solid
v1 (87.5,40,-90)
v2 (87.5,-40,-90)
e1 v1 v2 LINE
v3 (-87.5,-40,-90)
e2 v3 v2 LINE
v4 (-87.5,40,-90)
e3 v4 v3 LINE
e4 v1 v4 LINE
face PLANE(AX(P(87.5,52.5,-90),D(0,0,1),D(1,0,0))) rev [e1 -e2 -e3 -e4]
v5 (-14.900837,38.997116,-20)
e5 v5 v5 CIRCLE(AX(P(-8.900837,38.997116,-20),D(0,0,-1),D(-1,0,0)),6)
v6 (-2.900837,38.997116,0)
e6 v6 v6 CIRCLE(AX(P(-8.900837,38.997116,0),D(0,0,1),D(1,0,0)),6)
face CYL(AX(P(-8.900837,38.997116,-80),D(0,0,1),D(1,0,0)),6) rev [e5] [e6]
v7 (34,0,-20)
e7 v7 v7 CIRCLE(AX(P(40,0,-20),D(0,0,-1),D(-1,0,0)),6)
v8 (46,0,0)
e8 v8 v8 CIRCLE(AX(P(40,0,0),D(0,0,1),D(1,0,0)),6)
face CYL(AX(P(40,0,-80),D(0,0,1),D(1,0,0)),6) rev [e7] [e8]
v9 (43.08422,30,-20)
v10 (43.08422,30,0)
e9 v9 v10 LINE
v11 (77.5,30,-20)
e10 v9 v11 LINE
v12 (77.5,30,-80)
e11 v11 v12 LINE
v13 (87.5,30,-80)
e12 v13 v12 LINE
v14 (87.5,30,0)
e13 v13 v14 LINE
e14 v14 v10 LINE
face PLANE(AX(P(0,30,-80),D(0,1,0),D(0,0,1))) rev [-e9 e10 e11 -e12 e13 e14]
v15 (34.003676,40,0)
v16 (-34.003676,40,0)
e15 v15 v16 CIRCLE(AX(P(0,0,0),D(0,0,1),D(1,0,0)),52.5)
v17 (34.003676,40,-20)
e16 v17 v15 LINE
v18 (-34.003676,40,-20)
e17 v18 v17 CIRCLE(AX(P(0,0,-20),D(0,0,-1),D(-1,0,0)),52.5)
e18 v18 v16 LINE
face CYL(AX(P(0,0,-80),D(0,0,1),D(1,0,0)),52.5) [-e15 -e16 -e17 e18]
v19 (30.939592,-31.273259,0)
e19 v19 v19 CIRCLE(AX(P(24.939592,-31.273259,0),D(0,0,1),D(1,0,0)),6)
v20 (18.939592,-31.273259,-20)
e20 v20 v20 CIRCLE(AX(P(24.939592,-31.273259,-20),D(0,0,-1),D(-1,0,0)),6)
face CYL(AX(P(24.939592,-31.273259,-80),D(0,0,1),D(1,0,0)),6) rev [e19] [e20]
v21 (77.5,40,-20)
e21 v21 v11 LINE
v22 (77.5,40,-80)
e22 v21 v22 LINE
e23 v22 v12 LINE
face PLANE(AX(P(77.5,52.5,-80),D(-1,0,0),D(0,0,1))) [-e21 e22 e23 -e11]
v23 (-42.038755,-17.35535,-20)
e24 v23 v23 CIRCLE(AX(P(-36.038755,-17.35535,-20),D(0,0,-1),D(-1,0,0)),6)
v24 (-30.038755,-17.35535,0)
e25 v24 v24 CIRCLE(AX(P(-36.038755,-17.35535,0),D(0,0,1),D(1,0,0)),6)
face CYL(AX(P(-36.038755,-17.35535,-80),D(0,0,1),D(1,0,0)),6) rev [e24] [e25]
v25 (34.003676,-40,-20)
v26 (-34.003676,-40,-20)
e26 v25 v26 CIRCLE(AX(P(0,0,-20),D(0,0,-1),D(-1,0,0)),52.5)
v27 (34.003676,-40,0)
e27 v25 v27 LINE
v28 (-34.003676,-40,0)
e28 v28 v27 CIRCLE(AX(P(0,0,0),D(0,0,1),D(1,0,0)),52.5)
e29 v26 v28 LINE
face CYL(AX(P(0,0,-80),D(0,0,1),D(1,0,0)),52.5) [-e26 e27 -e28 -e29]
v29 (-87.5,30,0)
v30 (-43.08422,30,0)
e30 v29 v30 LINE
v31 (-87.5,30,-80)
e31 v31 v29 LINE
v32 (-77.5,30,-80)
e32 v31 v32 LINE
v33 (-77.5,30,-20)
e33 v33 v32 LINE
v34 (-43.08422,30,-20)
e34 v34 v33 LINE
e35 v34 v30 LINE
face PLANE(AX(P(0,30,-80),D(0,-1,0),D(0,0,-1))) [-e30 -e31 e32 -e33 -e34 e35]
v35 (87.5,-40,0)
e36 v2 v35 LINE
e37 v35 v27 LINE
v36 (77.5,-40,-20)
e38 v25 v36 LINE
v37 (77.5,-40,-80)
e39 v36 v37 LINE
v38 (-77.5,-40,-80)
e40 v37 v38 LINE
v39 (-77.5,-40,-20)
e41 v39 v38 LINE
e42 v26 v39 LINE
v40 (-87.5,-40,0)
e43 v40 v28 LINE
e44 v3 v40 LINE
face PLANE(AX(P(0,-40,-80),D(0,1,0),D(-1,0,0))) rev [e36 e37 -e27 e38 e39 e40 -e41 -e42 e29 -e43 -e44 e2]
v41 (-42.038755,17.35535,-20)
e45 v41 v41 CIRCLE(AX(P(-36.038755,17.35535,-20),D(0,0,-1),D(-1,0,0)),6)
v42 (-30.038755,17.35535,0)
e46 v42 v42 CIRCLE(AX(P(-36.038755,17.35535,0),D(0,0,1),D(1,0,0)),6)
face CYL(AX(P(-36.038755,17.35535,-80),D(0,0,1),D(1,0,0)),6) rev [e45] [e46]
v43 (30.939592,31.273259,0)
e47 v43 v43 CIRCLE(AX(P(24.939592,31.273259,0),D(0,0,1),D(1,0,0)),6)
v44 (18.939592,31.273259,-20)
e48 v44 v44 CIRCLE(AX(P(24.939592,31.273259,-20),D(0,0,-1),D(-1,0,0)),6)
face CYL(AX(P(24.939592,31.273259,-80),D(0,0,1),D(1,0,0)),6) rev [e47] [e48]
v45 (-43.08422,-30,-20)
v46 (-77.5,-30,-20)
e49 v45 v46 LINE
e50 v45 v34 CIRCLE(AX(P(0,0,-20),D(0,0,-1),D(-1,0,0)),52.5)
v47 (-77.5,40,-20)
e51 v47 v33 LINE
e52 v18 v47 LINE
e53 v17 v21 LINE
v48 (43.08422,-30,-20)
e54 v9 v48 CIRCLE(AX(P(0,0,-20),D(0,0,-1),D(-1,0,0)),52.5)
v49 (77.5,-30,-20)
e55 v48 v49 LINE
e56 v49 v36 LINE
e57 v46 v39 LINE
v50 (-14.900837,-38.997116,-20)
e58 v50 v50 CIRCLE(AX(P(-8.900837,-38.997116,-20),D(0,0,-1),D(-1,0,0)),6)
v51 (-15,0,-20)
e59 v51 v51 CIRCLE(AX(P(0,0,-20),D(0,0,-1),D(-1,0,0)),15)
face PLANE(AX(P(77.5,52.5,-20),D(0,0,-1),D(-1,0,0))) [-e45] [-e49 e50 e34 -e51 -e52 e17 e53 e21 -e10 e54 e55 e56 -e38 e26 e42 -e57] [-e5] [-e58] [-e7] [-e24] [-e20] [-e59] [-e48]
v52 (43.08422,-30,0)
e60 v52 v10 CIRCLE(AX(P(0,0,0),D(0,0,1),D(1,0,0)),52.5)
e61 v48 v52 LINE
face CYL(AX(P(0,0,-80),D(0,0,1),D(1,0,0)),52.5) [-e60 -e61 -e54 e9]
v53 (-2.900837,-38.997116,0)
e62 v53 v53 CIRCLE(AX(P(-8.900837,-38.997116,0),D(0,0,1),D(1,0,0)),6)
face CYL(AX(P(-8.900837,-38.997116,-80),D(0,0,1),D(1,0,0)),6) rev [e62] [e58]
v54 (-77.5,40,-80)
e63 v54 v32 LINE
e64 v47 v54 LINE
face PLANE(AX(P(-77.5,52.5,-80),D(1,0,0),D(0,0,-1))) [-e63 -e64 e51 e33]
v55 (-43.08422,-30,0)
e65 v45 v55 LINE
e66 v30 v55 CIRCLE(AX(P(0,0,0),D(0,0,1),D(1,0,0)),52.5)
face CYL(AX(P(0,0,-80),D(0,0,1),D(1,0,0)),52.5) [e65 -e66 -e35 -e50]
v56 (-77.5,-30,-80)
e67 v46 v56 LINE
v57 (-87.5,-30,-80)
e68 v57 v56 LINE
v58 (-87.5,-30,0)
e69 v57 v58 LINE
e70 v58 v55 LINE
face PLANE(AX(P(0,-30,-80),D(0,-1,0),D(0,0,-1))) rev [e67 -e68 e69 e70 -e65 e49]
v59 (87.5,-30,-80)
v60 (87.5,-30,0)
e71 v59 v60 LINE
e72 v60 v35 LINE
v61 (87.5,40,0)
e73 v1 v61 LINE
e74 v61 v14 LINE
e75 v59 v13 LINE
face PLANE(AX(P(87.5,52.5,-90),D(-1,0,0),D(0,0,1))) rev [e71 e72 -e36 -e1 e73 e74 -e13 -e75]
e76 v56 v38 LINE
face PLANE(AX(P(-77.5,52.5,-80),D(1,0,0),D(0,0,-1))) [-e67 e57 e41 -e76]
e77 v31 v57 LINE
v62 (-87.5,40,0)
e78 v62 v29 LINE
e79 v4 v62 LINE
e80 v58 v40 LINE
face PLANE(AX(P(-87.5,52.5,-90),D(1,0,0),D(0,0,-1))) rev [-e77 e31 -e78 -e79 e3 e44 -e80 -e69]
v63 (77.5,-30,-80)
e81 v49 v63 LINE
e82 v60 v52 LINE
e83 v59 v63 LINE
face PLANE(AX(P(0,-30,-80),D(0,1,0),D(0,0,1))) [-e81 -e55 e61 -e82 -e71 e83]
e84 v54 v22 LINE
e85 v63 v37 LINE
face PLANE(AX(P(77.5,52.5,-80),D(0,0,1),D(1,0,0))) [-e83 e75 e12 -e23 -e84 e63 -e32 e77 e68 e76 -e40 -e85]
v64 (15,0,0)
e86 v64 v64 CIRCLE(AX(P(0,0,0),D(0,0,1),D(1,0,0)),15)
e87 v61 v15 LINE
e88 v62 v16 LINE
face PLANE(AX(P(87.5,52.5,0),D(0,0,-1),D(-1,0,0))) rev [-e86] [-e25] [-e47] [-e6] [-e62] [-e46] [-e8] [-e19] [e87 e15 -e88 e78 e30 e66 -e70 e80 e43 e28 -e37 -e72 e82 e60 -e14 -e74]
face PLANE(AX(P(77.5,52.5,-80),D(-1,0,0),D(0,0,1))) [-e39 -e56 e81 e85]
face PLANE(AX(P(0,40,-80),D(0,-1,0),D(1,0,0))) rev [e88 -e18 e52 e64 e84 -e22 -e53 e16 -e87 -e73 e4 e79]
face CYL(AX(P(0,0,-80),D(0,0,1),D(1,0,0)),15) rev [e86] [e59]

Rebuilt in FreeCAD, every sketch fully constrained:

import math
import FreeCAD as App
import Part
import Sketcher
from FreeCAD import Vector
Q = App.Units.Quantity


def add_polygon(sketch, points):
    """Adds a closed chain of lines whose ends are joined by coincident constraints."""
    first, n = sketch.GeometryCount, len(points)
    for a, b in zip(points, points[1:] + points[:1]):
        sketch.addGeometry(Part.LineSegment(App.Vector(*a, 0), App.Vector(*b, 0)), False)
    for i in range(n):
        sketch.addConstraint(Sketcher.Constraint("Coincident", first + i, 2, first + (i + 1) % n, 1))

doc = App.newDocument("Part")
body = doc.addObject("PartDesign::Body", "Body")

sketch1 = body.newObject("Sketcher::SketchObject", "Sketch")
sketch1.AttachmentSupport = (doc.getObject("XZ_Plane"), [""])
sketch1.MapMode = "FlatFace"
add_polygon(sketch1, [(-87.5, -90), (-87.5, 0), (87.5, 0), (87.5, -90)])
add_polygon(sketch1, [(77.5, -20), (-77.5, -20), (-77.5, -80), (77.5, -80)])
sketch1.addConstraint([
    Sketcher.Constraint("Vertical", 0),
    Sketcher.Constraint("Horizontal", 1),
    Sketcher.Constraint("Vertical", 2),
    Sketcher.Constraint("Horizontal", 3),
    Sketcher.Constraint("Horizontal", 4),
    Sketcher.Constraint("Vertical", 5),
    Sketcher.Constraint("Horizontal", 6),
    Sketcher.Constraint("Vertical", 7),
    Sketcher.Constraint("Symmetric", 0, 2, 1, 2, -1, 1),
    Sketcher.Constraint("DistanceX", 1, 1, 1, 2, Q("175 mm")),
    Sketcher.Constraint("DistanceX", 4, 2, 4, 1, Q("155 mm")),
    Sketcher.Constraint("DistanceY", 0, 1, 0, 2, Q("90 mm")),
    Sketcher.Constraint("DistanceY", 5, 2, 5, 1, Q("60 mm")),
    Sketcher.Constraint("DistanceY", 4, 2, -1, 1, Q("20 mm")),
    Sketcher.Constraint("DistanceX", 0, 2, 4, 2, Q("10 mm")),
])
pad1 = body.newObject("PartDesign::Pad", "Pad")
pad1.Profile = sketch1
pad1.Length = 105
pad1.Midplane = True

sketch2 = body.newObject("Sketcher::SketchObject", "Sketch001")
sketch2.AttachmentSupport = (doc.getObject("XY_Plane"), [""])
sketch2.MapMode = "FlatFace"
sketch2.addGeometry([
    Part.LineSegment(Vector(-87.5, 52.5, 0), Vector(-87.5, 40, 0)),
    Part.LineSegment(Vector(-87.5, 40, 0), Vector(-34.003676, 40, 0)),
    Part.ArcOfCircle(Part.Circle(Vector(0, 0, 0), Vector(0, 0, 1), 52.5), math.radians(90), math.radians(130.367594)),
    Part.LineSegment(Vector(0, 52.5, 0), Vector(-87.5, 52.5, 0)),
    Part.LineSegment(Vector(87.5, 52.5, 0), Vector(0, 52.5, 0)),
    Part.ArcOfCircle(Part.Circle(Vector(0, 0, 0), Vector(0, 0, 1), 52.5), math.radians(49.632406), math.radians(90)),
    Part.LineSegment(Vector(34.003676, 40, 0), Vector(87.5, 40, 0)),
    Part.LineSegment(Vector(87.5, 40, 0), Vector(87.5, 52.5, 0)),
    Part.LineSegment(Vector(-34.003676, -40, 0), Vector(-87.5, -40, 0)),
    Part.LineSegment(Vector(-87.5, -40, 0), Vector(-87.5, -52.5, 0)),
    Part.LineSegment(Vector(-87.5, -52.5, 0), Vector(0, -52.5, 0)),
    Part.ArcOfCircle(Part.Circle(Vector(0, 0, 0), Vector(0, 0, 1), 52.5), math.radians(-130.367594), math.radians(-90)),
    Part.ArcOfCircle(Part.Circle(Vector(0, 0, 0), Vector(0, 0, 1), 52.5), math.radians(-90), math.radians(-49.632406)),
    Part.LineSegment(Vector(0, -52.5, 0), Vector(87.5, -52.5, 0)),
    Part.LineSegment(Vector(87.5, -52.5, 0), Vector(87.5, -40, 0)),
    Part.LineSegment(Vector(87.5, -40, 0), Vector(34.003676, -40, 0)),
    Part.LineSegment(Vector(87.5, 30, 0), Vector(43.08422, 30, 0)),
    Part.ArcOfCircle(Part.Circle(Vector(0, 0, 0), Vector(0, 0, 1), 52.5), math.radians(0), math.radians(34.849905)),
    Part.ArcOfCircle(Part.Circle(Vector(0, 0, 0), Vector(0, 0, 1), 52.5), math.radians(-34.849905), math.radians(0)),
    Part.LineSegment(Vector(43.08422, -30, 0), Vector(87.5, -30, 0)),
    Part.LineSegment(Vector(87.5, -30, 0), Vector(87.5, 30, 0)),
    Part.LineSegment(Vector(-43.08422, 30, 0), Vector(-87.5, 30, 0)),
    Part.LineSegment(Vector(-87.5, 30, 0), Vector(-87.5, -30, 0)),
    Part.LineSegment(Vector(-87.5, -30, 0), Vector(-43.08422, -30, 0)),
    Part.ArcOfCircle(Part.Circle(Vector(0, 0, 0), Vector(0, 0, 1), 52.5), math.radians(145.150095), math.radians(214.849905)),
    Part.Circle(Vector(-8.900837, 38.997116, 0), Vector(0, 0, 1), 6),
    Part.Circle(Vector(24.939592, 31.273259, 0), Vector(0, 0, 1), 6),
    Part.Circle(Vector(-36.038755, 17.35535, 0), Vector(0, 0, 1), 6),
    Part.Circle(Vector(40, 0, 0), Vector(0, 0, 1), 6),
    Part.Circle(Vector(-36.038755, -17.35535, 0), Vector(0, 0, 1), 6),
    Part.Circle(Vector(-8.900837, -38.997116, 0), Vector(0, 0, 1), 6),
    Part.Circle(Vector(24.939592, -31.273259, 0), Vector(0, 0, 1), 6),
    Part.Circle(Vector(0, 0, 0), Vector(0, 0, 1), 15),
], False)
sketch2.addConstraint([
    Sketcher.Constraint("Coincident", 0, 2, 1, 1),
    Sketcher.Constraint("Coincident", 1, 2, 2, 2),
    Sketcher.Constraint("Tangent", 2, 1, 3, 1),
    Sketcher.Constraint("Coincident", 3, 2, 0, 1),
    Sketcher.Constraint("Tangent", 4, 2, 5, 2),
    Sketcher.Constraint("Coincident", 5, 1, 6, 1),
    Sketcher.Constraint("Coincident", 6, 2, 7, 1),
    Sketcher.Constraint("Coincident", 7, 2, 4, 1),
    Sketcher.Constraint("Coincident", 8, 2, 9, 1),
    Sketcher.Constraint("Coincident", 9, 2, 10, 1),
    Sketcher.Constraint("Tangent", 10, 2, 11, 2),
    Sketcher.Constraint("Coincident", 11, 1, 8, 1),
    Sketcher.Constraint("Tangent", 12, 1, 13, 1),
    Sketcher.Constraint("Coincident", 13, 2, 14, 1),
    Sketcher.Constraint("Coincident", 14, 2, 15, 1),
    Sketcher.Constraint("Coincident", 15, 2, 12, 2),
    Sketcher.Constraint("Coincident", 16, 2, 17, 2),
    Sketcher.Constraint("Tangent", 17, 1, 18, 2),
    Sketcher.Constraint("Coincident", 18, 1, 19, 1),
    Sketcher.Constraint("Coincident", 19, 2, 20, 1),
    Sketcher.Constraint("Coincident", 20, 2, 16, 1),
    Sketcher.Constraint("Coincident", 21, 2, 22, 1),
    Sketcher.Constraint("Coincident", 22, 2, 23, 1),
    Sketcher.Constraint("Coincident", 23, 2, 24, 2),
    Sketcher.Constraint("Coincident", 24, 1, 21, 1),
    Sketcher.Constraint("Vertical", 0),
    Sketcher.Constraint("Horizontal", 1),
    Sketcher.Constraint("Horizontal", 3),
    Sketcher.Constraint("Horizontal", 4),
    Sketcher.Constraint("Horizontal", 6),
    Sketcher.Constraint("Vertical", 7),
    Sketcher.Constraint("Horizontal", 8),
    Sketcher.Constraint("Vertical", 9),
    Sketcher.Constraint("Horizontal", 10),
    Sketcher.Constraint("Horizontal", 13),
    Sketcher.Constraint("Vertical", 14),
    Sketcher.Constraint("Horizontal", 15),
    Sketcher.Constraint("Horizontal", 16),
    Sketcher.Constraint("Horizontal", 19),
    Sketcher.Constraint("Vertical", 20),
    Sketcher.Constraint("Horizontal", 21),
    Sketcher.Constraint("Vertical", 22),
    Sketcher.Constraint("Horizontal", 23),
    Sketcher.Constraint("Coincident", 2, 3, -1, 1),
    Sketcher.Constraint("Coincident", 5, 3, -1, 1),
    Sketcher.Constraint("Coincident", 11, 3, -1, 1),
    Sketcher.Constraint("Coincident", 12, 3, -1, 1),
    Sketcher.Constraint("Coincident", 17, 3, -1, 1),
    Sketcher.Constraint("Coincident", 24, 3, -1, 1),
    Sketcher.Constraint("Coincident", 32, 3, -1, 1),
    Sketcher.Constraint("Equal", 2, 5),
    Sketcher.Constraint("Equal", 5, 11),
    Sketcher.Constraint("Equal", 11, 12),
    Sketcher.Constraint("Equal", 12, 17),
    Sketcher.Constraint("Equal", 17, 18),
    Sketcher.Constraint("Equal", 18, 24),
    Sketcher.Constraint("Equal", 25, 26),
    Sketcher.Constraint("Equal", 26, 27),
    Sketcher.Constraint("Equal", 27, 28),
    Sketcher.Constraint("Equal", 28, 29),
    Sketcher.Constraint("Equal", 29, 30),
    Sketcher.Constraint("Equal", 30, 31),
    Sketcher.Constraint("Symmetric", 6, 2, 8, 2, -1, 1),
    Sketcher.Constraint("Symmetric", 0, 2, 14, 2, -1, 1),
    Sketcher.Constraint("Symmetric", 19, 2, 21, 2, -1, 1),
    Sketcher.Constraint("Symmetric", 0, 2, 6, 2, -2),
    Sketcher.Constraint("Symmetric", 27, 3, 29, 3, -1),
    Sketcher.Constraint("Symmetric", 25, 3, 30, 3, -1),
    Sketcher.Constraint("Symmetric", 26, 3, 31, 3, -1),
    Sketcher.Constraint("PointOnObject", 28, 3, -1),
    Sketcher.Constraint("PointOnObject", 17, 1, -1),
    Sketcher.Constraint("Horizontal", 20, 2, 21, 2),
    Sketcher.Constraint("Horizontal", 19, 2, 22, 2),
    Sketcher.Constraint("Vertical", 14, 2, 19, 2),
    Sketcher.Constraint("Diameter", 25, Q("12 mm")),
    Sketcher.Constraint("Diameter", 32, Q("30 mm")),
    Sketcher.Constraint("Radius", 2, Q("52.5 mm")),
    Sketcher.Constraint("DistanceY", 20, 1, 20, 2, Q("60 mm")),
    Sketcher.Constraint("DistanceX", 3, 2, 3, 1, Q("87.5 mm")),
    Sketcher.Constraint("DistanceY", 0, 2, 0, 1, Q("12.5 mm")),
    Sketcher.Constraint("DistanceX", -1, 1, 28, 3, Q("40 mm")),
    Sketcher.Constraint("DistanceY", 29, 3, 27, 3, Q("34.710699 mm")),
    Sketcher.Constraint("DistanceY", -1, 1, 26, 3, Q("31.273259 mm")),
    Sketcher.Constraint("DistanceX", 25, 3, 26, 3, Q("33.840429 mm")),
    Sketcher.Constraint("DistanceX", 27, 3, 1, 2, Q("2.035078 mm")),
    Sketcher.Constraint("DistanceX", 1, 2, 25, 3, Q("25.102839 mm")),
    Sketcher.Constraint("DistanceY", -1, 1, 25, 3, Q("38.997116 mm")),
])
pocket1 = body.newObject("PartDesign::Pocket", "Pocket")
pocket1.Profile = sketch2
pocket1.Length = 80

sketch3 = body.newObject("Sketcher::SketchObject", "Sketch002")
sketch3.AttachmentSupport = (doc.getObject("XY_Plane"), [""])
sketch3.MapMode = "FlatFace"
sketch3.AttachmentOffset = App.Placement(Vector(0, 0, -80), App.Rotation())
add_polygon(sketch3, [(-87.5, 52.5), (-87.5, 40), (87.5, 40), (87.5, 52.5)])
add_polygon(sketch3, [(-87.5, -40), (-87.5, -52.5), (87.5, -52.5), (87.5, -40)])
sketch3.addConstraint([
    Sketcher.Constraint("Vertical", 0),
    Sketcher.Constraint("Horizontal", 1),
    Sketcher.Constraint("Vertical", 2),
    Sketcher.Constraint("Horizontal", 3),
    Sketcher.Constraint("Vertical", 4),
    Sketcher.Constraint("Horizontal", 5),
    Sketcher.Constraint("Vertical", 6),
    Sketcher.Constraint("Horizontal", 7),
    Sketcher.Constraint("Symmetric", 2, 2, 4, 2, -1, 1),
    Sketcher.Constraint("Symmetric", 0, 2, 6, 2, -1, 1),
    Sketcher.Constraint("Vertical", 3, 2, 4, 2),
    Sketcher.Constraint("DistanceX", 1, 1, 1, 2, Q("175 mm")),
    Sketcher.Constraint("DistanceY", 0, 2, 0, 1, Q("12.5 mm")),
    Sketcher.Constraint("DistanceY", -1, 1, 0, 2, Q("40 mm")),
])
pocket2 = body.newObject("PartDesign::Pocket", "Pocket001")
pocket2.Profile = sketch3
pocket2.Length = 10

doc.recompute()
